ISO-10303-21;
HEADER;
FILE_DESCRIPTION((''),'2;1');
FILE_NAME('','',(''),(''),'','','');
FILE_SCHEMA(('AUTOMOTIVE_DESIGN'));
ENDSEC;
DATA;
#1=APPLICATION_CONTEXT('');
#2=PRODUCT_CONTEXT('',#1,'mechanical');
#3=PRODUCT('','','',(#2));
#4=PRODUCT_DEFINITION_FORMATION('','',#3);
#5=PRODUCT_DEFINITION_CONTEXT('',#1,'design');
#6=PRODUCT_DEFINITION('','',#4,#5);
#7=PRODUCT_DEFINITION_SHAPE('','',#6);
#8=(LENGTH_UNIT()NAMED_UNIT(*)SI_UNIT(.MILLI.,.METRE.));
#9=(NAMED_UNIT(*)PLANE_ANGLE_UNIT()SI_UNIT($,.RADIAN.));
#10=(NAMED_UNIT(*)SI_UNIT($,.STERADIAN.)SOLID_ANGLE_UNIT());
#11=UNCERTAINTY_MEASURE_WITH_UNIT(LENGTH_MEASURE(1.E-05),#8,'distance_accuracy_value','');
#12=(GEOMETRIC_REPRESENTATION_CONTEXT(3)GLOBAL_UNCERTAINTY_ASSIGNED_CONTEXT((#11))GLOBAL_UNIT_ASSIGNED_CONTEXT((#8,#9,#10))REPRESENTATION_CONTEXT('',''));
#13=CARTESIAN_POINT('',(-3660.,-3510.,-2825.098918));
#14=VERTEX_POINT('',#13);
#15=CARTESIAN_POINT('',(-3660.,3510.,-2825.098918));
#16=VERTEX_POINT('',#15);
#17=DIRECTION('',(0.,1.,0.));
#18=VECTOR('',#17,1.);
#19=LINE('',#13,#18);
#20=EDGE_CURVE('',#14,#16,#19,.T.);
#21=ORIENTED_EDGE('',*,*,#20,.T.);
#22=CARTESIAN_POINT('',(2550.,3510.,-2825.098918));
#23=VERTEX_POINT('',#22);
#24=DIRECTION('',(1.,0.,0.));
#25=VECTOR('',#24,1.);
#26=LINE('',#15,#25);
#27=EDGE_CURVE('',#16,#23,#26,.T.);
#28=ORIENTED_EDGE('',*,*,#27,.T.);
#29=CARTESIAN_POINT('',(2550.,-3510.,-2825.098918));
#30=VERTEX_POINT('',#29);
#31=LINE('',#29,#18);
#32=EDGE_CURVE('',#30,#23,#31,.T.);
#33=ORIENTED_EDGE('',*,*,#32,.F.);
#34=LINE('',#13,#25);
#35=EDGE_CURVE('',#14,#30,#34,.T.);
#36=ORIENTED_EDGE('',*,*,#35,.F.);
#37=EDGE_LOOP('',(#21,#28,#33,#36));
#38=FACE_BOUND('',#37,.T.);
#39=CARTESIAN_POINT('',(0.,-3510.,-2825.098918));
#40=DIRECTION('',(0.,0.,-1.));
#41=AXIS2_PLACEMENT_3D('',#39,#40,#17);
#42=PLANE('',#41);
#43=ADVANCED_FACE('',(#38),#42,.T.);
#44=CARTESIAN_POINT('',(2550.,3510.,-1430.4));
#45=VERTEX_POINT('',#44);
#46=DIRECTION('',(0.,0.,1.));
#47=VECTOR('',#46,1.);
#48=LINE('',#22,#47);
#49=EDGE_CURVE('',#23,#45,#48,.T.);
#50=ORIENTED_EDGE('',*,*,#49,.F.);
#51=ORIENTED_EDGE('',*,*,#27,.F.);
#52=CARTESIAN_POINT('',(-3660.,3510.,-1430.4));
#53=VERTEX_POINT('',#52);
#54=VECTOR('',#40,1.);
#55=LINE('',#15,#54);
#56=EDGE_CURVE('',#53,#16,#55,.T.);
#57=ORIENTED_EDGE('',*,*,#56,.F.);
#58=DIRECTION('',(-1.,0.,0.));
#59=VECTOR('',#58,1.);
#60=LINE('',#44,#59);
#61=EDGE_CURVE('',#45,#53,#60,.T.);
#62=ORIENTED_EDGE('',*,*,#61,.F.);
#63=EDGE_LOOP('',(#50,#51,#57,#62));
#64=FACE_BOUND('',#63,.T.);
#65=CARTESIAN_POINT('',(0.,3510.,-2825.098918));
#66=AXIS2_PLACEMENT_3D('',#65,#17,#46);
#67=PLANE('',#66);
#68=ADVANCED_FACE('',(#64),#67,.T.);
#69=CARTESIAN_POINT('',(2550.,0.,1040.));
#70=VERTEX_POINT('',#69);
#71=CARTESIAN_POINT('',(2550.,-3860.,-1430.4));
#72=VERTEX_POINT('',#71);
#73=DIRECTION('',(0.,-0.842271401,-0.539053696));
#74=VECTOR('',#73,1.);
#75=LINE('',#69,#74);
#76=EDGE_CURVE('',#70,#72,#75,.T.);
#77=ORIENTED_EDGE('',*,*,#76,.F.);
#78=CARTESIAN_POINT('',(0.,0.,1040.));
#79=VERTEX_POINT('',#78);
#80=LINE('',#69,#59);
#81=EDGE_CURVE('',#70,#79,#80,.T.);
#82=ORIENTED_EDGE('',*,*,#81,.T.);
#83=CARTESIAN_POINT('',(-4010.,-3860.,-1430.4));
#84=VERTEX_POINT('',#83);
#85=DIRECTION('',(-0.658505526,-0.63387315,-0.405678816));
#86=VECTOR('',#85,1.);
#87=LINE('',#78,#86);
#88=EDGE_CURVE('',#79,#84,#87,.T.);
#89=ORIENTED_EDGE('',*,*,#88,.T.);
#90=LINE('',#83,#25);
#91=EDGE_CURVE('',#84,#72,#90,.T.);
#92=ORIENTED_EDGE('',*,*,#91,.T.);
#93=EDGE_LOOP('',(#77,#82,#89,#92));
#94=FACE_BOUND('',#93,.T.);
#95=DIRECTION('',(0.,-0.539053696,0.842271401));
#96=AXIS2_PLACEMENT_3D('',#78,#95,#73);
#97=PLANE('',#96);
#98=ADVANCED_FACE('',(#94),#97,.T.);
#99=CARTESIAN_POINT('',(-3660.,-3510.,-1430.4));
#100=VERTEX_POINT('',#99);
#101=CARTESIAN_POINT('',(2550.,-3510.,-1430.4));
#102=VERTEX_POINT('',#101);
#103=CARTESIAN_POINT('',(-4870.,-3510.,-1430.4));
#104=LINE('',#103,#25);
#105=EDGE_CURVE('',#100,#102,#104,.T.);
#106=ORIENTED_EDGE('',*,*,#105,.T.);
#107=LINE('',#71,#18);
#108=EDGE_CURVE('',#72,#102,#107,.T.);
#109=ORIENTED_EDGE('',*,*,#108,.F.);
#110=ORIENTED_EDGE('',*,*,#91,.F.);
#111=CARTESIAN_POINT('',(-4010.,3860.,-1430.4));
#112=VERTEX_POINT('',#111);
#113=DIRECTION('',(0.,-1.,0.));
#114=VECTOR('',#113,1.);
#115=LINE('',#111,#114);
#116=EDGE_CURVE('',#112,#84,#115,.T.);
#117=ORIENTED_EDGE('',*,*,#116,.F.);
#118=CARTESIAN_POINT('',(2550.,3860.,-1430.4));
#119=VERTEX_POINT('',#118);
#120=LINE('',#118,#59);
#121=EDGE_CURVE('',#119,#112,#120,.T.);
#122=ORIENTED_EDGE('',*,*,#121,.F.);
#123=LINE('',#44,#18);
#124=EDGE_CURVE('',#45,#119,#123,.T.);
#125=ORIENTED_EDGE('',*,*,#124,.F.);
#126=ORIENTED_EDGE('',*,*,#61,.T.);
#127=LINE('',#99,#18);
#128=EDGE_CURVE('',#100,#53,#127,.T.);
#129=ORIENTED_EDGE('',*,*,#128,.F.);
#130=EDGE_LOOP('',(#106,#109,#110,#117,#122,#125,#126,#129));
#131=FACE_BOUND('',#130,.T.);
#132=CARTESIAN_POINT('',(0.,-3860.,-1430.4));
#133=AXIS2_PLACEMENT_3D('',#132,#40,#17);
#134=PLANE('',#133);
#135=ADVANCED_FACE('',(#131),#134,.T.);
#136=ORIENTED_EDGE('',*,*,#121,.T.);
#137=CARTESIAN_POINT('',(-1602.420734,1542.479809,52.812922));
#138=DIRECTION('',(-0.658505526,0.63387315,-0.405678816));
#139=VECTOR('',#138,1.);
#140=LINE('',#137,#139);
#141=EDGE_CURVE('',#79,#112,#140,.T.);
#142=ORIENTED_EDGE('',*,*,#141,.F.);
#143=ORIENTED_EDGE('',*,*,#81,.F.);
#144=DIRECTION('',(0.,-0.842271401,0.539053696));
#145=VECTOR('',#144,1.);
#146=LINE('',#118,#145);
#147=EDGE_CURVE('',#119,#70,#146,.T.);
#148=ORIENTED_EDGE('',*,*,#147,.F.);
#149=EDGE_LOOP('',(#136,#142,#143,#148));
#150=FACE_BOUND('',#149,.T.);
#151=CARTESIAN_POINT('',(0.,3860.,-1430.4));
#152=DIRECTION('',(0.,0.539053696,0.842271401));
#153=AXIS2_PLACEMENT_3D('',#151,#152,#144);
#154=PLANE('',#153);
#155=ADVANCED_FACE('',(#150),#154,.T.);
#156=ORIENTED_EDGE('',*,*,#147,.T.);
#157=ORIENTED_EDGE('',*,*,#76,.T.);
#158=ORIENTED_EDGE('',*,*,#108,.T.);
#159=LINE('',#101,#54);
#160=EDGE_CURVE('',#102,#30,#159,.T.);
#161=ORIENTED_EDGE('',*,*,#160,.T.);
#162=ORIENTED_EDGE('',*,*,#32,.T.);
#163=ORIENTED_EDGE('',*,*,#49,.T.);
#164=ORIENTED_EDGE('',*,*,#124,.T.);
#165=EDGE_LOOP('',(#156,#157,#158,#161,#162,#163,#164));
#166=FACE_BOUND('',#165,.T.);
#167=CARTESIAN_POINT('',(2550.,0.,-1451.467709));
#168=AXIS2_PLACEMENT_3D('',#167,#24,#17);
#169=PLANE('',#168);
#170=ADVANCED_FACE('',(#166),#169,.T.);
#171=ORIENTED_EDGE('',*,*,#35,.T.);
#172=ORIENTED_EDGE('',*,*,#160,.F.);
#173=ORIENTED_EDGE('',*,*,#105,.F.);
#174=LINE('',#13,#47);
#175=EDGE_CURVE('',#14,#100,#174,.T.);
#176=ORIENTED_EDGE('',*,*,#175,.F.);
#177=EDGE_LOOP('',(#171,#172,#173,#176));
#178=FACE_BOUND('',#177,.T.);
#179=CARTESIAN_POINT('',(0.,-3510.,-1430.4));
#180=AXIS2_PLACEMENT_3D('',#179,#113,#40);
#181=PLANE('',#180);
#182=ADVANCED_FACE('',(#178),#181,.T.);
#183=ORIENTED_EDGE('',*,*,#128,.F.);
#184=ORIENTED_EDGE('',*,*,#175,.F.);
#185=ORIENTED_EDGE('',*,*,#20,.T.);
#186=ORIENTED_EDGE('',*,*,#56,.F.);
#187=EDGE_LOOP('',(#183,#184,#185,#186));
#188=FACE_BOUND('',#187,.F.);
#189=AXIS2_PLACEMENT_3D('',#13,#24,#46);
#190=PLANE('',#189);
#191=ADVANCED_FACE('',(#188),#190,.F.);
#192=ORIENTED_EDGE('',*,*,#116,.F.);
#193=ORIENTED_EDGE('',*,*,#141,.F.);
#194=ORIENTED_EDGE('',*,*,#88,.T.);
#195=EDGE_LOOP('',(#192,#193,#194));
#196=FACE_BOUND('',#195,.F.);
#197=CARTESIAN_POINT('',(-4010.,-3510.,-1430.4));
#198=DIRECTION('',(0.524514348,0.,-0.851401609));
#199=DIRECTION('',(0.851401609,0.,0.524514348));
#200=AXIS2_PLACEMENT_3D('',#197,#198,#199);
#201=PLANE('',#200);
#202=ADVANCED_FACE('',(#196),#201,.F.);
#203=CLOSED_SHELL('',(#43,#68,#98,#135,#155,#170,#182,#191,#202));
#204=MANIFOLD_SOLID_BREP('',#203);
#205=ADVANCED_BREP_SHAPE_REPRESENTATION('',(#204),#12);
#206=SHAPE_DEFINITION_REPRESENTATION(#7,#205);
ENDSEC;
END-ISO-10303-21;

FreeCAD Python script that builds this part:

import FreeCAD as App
import Part
import Sketcher


def add_polygon(sketch, points):
    """Adds a closed chain of lines whose ends are joined by coincident constraints."""
    first, n = sketch.GeometryCount, len(points)
    for a, b in zip(points, points[1:] + points[:1]):
        sketch.addGeometry(Part.LineSegment(App.Vector(*a, 0), App.Vector(*b, 0)), False)
    for i in range(n):
        sketch.addConstraint(Sketcher.Constraint("Coincident", first + i, 2, first + (i + 1) % n, 1))

doc = App.newDocument("Part")
body = doc.addObject("PartDesign::Body", "Body")

sketch1 = doc.addObject("Sketcher::SketchObject", "Sketch")
body.addObject(sketch1)
sketch1.AttachmentSupport = (doc.YZ_Plane, [""])
sketch1.MapMode = "FlatFace"
add_polygon(sketch1, [(0, 1040), (-3860, -1430), (-3510, -1430), (-3510, -2825), (3510, -2825), (3510, -1430), (3860, -1430)])
sketch1.addConstraint([
    Sketcher.Constraint("Horizontal", 1),
    Sketcher.Constraint("Vertical", 2),
    Sketcher.Constraint("Horizontal", 3),
    Sketcher.Constraint("Vertical", 4),
    Sketcher.Constraint("Horizontal", 5),
    Sketcher.Constraint("Symmetric", 1, 2, 4, 2, -2),
    Sketcher.Constraint("PointOnObject", 6, 2, -2),
    Sketcher.Constraint("Equal", 1, 5),
    Sketcher.Constraint("DistanceX", 1, 1, 1, 2, 350.0),
    Sketcher.Constraint("DistanceX", 3, 1, 3, 2, 7020.0),
    Sketcher.Constraint("DistanceY", -1, 1, 6, 2, 1040.0),
    Sketcher.Constraint("DistanceY", 0, 2, -1, 1, 1430.4),
    Sketcher.Constraint("DistanceY", 2, 2, 2, 1, 1394.698918),
])
pad1 = doc.addObject("PartDesign::Pad", "Pad")
body.addObject(pad1)
pad1.Profile = sketch1
pad1.Type = "TwoLengths"
pad1.Length = 2550
pad1.Length2 = 4870

sketch2 = doc.addObject("Sketcher::SketchObject", "Sketch001")
body.addObject(sketch2)
sketch2.AttachmentSupport = (doc.XZ_Plane, [""])
sketch2.MapMode = "FlatFace"
sketch2.AttachmentOffset = App.Placement(App.Vector(0, 0, 3510), App.Rotation())
add_polygon(sketch2, [(0, -2825), (-3660, -2825), (-3660, -1430), (-4010, -1430), (0, 1040), (0, 1642), (-5605, 1642), (-5605, -4046), (0, -4046)])
sketch2.addConstraint([
    Sketcher.Constraint("Horizontal", 0),
    Sketcher.Constraint("Vertical", 1),
    Sketcher.Constraint("Horizontal", 2),
    Sketcher.Constraint("Vertical", 4),
    Sketcher.Constraint("Horizontal", 5),
    Sketcher.Constraint("Vertical", 6),
    Sketcher.Constraint("Horizontal", 7),
    Sketcher.Constraint("Vertical", 8),
    Sketcher.Constraint("PointOnObject", 3, 2, -2),
    Sketcher.Constraint("PointOnObject", 7, 2, -2),
    Sketcher.Constraint("DistanceX", 0, 2, 0, 1, 3660.0),
    Sketcher.Constraint("DistanceX", 2, 2, 2, 1, 350.0),
    Sketcher.Constraint("DistanceY", -1, 1, 3, 2, 1040.0),
    Sketcher.Constraint("DistanceY", 1, 2, -1, 1, 1430.4),
    Sketcher.Constraint("DistanceX", 5, 2, 5, 1, 5604.514599),
    Sketcher.Constraint("DistanceY", 6, 2, 6, 1, 5687.822819),
    Sketcher.Constraint("DistanceY", 1, 1, 1, 2, 1394.698918),
    Sketcher.Constraint("DistanceY", 4, 1, 4, 2, 601.884327),
])
pocket1 = doc.addObject("PartDesign::Pocket", "Pocket")
body.addObject(pocket1)
pocket1.Profile = sketch2
pocket1.Type = "ThroughAll"
pocket1.Midplane = True

doc.recompute()
